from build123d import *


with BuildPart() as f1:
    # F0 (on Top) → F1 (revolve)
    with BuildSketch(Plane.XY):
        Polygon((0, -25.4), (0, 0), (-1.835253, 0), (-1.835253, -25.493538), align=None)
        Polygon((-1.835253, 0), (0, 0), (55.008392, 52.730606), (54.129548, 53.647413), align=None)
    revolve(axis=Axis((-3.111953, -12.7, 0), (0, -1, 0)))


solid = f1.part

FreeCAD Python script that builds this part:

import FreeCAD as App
import Part
import Sketcher
from FreeCAD import Vector
Q = App.Units.Quantity


def add_polygon(sketch, points):
    """Adds a closed chain of lines whose ends are joined by coincident constraints."""
    first, n = sketch.GeometryCount, len(points)
    for a, b in zip(points, points[1:] + points[:1]):
        sketch.addGeometry(Part.LineSegment(App.Vector(*a, 0), App.Vector(*b, 0)), False)
    for i in range(n):
        sketch.addConstraint(Sketcher.Constraint("Coincident", first + i, 2, first + (i + 1) % n, 1))

doc = App.newDocument("Part")
params = doc.addObject("Spreadsheet::Sheet", "Params")
for row, (alias, value) in enumerate([
    ("sketch1_height", "1 in"),
    ("sketch1_length", "3 in"),
    ("sketch1_length2", "0.05 in"),
    ("revolution_angle", "360 deg"),
], start=1):
    params.set(f"A{row}", alias)
    params.set(f"B{row}", "=" + value)
    params.setAlias(f"B{row}", alias)

body = doc.addObject("PartDesign::Body", "Body")

sketch1 = body.newObject("Sketcher::SketchObject", "Sketch")
sketch1.AttachmentSupport = (doc.getObject("XY_Plane"), [""])
sketch1.MapMode = "FlatFace"
add_polygon(sketch1, [(0, -25.4), (0, 0), (55.008392, 52.730606), (54.129548, 53.647413), (-1.835253, 0), (-1.835253, -25.493538)])
sketch1.addGeometry(Part.LineSegment(Vector(-3.111953, 53.647413, 0), Vector(-3.111953, -25.493538, 0)), True)
sketch1.addConstraint(Sketcher.Constraint("Vertical", 0))
sketch1.addConstraint(Sketcher.Constraint("Vertical", 4))
sketch1.addConstraint(Sketcher.Constraint("Vertical", 6))
sketch1.addConstraint(Sketcher.Constraint("Coincident", 0, 2, -1, 1))
sketch1.addConstraint(Sketcher.Constraint("PointOnObject", 3, 2, -1))
sketch1.addConstraint(Sketcher.Constraint("DistanceY", 0, 1, 0, 2, Q("1 in")))
sketch1.addConstraint(Sketcher.Constraint("Distance", 1, Q("3 in")))
sketch1.addConstraint(Sketcher.Constraint("Distance", 2, Q("0.05 in")))
sketch1.addConstraint(Sketcher.Constraint("DistanceX", 2, 2, 1, 2, Q("0.0346002 in")))
sketch1.addConstraint(Sketcher.Constraint("DistanceY", 4, 2, 4, 1, 25.493538))
sketch1.addConstraint(Sketcher.Constraint("DistanceY", 6, 2, 6, 1, 79.140951))
sketch1.addConstraint(Sketcher.Constraint("DistanceX", 3, 2, 2, 2, 55.964801))
sketch1.addConstraint(Sketcher.Constraint("DistanceX", 6, 1, 3, 2, 1.2767))
sketch1.addConstraint(Sketcher.Constraint("Distance", 3, 77.52486))
sketch1.addConstraint(Sketcher.Constraint("DistanceY", 6, 2, -1, 1, 25.493538))
sketch1.setExpression("Constraints[11]", "Params.sketch1_height")
sketch1.setExpression("Constraints[12]", "Params.sketch1_length")
sketch1.setExpression("Constraints[13]", "Params.sketch1_length2")
revolution = body.newObject("PartDesign::Revolution", "Revolution")
revolution.Profile = sketch1
revolution.ReferenceAxis = (sketch1, ["Axis0"])
revolution.setExpression("Angle", "Params.revolution_angle")

doc.recompute()
